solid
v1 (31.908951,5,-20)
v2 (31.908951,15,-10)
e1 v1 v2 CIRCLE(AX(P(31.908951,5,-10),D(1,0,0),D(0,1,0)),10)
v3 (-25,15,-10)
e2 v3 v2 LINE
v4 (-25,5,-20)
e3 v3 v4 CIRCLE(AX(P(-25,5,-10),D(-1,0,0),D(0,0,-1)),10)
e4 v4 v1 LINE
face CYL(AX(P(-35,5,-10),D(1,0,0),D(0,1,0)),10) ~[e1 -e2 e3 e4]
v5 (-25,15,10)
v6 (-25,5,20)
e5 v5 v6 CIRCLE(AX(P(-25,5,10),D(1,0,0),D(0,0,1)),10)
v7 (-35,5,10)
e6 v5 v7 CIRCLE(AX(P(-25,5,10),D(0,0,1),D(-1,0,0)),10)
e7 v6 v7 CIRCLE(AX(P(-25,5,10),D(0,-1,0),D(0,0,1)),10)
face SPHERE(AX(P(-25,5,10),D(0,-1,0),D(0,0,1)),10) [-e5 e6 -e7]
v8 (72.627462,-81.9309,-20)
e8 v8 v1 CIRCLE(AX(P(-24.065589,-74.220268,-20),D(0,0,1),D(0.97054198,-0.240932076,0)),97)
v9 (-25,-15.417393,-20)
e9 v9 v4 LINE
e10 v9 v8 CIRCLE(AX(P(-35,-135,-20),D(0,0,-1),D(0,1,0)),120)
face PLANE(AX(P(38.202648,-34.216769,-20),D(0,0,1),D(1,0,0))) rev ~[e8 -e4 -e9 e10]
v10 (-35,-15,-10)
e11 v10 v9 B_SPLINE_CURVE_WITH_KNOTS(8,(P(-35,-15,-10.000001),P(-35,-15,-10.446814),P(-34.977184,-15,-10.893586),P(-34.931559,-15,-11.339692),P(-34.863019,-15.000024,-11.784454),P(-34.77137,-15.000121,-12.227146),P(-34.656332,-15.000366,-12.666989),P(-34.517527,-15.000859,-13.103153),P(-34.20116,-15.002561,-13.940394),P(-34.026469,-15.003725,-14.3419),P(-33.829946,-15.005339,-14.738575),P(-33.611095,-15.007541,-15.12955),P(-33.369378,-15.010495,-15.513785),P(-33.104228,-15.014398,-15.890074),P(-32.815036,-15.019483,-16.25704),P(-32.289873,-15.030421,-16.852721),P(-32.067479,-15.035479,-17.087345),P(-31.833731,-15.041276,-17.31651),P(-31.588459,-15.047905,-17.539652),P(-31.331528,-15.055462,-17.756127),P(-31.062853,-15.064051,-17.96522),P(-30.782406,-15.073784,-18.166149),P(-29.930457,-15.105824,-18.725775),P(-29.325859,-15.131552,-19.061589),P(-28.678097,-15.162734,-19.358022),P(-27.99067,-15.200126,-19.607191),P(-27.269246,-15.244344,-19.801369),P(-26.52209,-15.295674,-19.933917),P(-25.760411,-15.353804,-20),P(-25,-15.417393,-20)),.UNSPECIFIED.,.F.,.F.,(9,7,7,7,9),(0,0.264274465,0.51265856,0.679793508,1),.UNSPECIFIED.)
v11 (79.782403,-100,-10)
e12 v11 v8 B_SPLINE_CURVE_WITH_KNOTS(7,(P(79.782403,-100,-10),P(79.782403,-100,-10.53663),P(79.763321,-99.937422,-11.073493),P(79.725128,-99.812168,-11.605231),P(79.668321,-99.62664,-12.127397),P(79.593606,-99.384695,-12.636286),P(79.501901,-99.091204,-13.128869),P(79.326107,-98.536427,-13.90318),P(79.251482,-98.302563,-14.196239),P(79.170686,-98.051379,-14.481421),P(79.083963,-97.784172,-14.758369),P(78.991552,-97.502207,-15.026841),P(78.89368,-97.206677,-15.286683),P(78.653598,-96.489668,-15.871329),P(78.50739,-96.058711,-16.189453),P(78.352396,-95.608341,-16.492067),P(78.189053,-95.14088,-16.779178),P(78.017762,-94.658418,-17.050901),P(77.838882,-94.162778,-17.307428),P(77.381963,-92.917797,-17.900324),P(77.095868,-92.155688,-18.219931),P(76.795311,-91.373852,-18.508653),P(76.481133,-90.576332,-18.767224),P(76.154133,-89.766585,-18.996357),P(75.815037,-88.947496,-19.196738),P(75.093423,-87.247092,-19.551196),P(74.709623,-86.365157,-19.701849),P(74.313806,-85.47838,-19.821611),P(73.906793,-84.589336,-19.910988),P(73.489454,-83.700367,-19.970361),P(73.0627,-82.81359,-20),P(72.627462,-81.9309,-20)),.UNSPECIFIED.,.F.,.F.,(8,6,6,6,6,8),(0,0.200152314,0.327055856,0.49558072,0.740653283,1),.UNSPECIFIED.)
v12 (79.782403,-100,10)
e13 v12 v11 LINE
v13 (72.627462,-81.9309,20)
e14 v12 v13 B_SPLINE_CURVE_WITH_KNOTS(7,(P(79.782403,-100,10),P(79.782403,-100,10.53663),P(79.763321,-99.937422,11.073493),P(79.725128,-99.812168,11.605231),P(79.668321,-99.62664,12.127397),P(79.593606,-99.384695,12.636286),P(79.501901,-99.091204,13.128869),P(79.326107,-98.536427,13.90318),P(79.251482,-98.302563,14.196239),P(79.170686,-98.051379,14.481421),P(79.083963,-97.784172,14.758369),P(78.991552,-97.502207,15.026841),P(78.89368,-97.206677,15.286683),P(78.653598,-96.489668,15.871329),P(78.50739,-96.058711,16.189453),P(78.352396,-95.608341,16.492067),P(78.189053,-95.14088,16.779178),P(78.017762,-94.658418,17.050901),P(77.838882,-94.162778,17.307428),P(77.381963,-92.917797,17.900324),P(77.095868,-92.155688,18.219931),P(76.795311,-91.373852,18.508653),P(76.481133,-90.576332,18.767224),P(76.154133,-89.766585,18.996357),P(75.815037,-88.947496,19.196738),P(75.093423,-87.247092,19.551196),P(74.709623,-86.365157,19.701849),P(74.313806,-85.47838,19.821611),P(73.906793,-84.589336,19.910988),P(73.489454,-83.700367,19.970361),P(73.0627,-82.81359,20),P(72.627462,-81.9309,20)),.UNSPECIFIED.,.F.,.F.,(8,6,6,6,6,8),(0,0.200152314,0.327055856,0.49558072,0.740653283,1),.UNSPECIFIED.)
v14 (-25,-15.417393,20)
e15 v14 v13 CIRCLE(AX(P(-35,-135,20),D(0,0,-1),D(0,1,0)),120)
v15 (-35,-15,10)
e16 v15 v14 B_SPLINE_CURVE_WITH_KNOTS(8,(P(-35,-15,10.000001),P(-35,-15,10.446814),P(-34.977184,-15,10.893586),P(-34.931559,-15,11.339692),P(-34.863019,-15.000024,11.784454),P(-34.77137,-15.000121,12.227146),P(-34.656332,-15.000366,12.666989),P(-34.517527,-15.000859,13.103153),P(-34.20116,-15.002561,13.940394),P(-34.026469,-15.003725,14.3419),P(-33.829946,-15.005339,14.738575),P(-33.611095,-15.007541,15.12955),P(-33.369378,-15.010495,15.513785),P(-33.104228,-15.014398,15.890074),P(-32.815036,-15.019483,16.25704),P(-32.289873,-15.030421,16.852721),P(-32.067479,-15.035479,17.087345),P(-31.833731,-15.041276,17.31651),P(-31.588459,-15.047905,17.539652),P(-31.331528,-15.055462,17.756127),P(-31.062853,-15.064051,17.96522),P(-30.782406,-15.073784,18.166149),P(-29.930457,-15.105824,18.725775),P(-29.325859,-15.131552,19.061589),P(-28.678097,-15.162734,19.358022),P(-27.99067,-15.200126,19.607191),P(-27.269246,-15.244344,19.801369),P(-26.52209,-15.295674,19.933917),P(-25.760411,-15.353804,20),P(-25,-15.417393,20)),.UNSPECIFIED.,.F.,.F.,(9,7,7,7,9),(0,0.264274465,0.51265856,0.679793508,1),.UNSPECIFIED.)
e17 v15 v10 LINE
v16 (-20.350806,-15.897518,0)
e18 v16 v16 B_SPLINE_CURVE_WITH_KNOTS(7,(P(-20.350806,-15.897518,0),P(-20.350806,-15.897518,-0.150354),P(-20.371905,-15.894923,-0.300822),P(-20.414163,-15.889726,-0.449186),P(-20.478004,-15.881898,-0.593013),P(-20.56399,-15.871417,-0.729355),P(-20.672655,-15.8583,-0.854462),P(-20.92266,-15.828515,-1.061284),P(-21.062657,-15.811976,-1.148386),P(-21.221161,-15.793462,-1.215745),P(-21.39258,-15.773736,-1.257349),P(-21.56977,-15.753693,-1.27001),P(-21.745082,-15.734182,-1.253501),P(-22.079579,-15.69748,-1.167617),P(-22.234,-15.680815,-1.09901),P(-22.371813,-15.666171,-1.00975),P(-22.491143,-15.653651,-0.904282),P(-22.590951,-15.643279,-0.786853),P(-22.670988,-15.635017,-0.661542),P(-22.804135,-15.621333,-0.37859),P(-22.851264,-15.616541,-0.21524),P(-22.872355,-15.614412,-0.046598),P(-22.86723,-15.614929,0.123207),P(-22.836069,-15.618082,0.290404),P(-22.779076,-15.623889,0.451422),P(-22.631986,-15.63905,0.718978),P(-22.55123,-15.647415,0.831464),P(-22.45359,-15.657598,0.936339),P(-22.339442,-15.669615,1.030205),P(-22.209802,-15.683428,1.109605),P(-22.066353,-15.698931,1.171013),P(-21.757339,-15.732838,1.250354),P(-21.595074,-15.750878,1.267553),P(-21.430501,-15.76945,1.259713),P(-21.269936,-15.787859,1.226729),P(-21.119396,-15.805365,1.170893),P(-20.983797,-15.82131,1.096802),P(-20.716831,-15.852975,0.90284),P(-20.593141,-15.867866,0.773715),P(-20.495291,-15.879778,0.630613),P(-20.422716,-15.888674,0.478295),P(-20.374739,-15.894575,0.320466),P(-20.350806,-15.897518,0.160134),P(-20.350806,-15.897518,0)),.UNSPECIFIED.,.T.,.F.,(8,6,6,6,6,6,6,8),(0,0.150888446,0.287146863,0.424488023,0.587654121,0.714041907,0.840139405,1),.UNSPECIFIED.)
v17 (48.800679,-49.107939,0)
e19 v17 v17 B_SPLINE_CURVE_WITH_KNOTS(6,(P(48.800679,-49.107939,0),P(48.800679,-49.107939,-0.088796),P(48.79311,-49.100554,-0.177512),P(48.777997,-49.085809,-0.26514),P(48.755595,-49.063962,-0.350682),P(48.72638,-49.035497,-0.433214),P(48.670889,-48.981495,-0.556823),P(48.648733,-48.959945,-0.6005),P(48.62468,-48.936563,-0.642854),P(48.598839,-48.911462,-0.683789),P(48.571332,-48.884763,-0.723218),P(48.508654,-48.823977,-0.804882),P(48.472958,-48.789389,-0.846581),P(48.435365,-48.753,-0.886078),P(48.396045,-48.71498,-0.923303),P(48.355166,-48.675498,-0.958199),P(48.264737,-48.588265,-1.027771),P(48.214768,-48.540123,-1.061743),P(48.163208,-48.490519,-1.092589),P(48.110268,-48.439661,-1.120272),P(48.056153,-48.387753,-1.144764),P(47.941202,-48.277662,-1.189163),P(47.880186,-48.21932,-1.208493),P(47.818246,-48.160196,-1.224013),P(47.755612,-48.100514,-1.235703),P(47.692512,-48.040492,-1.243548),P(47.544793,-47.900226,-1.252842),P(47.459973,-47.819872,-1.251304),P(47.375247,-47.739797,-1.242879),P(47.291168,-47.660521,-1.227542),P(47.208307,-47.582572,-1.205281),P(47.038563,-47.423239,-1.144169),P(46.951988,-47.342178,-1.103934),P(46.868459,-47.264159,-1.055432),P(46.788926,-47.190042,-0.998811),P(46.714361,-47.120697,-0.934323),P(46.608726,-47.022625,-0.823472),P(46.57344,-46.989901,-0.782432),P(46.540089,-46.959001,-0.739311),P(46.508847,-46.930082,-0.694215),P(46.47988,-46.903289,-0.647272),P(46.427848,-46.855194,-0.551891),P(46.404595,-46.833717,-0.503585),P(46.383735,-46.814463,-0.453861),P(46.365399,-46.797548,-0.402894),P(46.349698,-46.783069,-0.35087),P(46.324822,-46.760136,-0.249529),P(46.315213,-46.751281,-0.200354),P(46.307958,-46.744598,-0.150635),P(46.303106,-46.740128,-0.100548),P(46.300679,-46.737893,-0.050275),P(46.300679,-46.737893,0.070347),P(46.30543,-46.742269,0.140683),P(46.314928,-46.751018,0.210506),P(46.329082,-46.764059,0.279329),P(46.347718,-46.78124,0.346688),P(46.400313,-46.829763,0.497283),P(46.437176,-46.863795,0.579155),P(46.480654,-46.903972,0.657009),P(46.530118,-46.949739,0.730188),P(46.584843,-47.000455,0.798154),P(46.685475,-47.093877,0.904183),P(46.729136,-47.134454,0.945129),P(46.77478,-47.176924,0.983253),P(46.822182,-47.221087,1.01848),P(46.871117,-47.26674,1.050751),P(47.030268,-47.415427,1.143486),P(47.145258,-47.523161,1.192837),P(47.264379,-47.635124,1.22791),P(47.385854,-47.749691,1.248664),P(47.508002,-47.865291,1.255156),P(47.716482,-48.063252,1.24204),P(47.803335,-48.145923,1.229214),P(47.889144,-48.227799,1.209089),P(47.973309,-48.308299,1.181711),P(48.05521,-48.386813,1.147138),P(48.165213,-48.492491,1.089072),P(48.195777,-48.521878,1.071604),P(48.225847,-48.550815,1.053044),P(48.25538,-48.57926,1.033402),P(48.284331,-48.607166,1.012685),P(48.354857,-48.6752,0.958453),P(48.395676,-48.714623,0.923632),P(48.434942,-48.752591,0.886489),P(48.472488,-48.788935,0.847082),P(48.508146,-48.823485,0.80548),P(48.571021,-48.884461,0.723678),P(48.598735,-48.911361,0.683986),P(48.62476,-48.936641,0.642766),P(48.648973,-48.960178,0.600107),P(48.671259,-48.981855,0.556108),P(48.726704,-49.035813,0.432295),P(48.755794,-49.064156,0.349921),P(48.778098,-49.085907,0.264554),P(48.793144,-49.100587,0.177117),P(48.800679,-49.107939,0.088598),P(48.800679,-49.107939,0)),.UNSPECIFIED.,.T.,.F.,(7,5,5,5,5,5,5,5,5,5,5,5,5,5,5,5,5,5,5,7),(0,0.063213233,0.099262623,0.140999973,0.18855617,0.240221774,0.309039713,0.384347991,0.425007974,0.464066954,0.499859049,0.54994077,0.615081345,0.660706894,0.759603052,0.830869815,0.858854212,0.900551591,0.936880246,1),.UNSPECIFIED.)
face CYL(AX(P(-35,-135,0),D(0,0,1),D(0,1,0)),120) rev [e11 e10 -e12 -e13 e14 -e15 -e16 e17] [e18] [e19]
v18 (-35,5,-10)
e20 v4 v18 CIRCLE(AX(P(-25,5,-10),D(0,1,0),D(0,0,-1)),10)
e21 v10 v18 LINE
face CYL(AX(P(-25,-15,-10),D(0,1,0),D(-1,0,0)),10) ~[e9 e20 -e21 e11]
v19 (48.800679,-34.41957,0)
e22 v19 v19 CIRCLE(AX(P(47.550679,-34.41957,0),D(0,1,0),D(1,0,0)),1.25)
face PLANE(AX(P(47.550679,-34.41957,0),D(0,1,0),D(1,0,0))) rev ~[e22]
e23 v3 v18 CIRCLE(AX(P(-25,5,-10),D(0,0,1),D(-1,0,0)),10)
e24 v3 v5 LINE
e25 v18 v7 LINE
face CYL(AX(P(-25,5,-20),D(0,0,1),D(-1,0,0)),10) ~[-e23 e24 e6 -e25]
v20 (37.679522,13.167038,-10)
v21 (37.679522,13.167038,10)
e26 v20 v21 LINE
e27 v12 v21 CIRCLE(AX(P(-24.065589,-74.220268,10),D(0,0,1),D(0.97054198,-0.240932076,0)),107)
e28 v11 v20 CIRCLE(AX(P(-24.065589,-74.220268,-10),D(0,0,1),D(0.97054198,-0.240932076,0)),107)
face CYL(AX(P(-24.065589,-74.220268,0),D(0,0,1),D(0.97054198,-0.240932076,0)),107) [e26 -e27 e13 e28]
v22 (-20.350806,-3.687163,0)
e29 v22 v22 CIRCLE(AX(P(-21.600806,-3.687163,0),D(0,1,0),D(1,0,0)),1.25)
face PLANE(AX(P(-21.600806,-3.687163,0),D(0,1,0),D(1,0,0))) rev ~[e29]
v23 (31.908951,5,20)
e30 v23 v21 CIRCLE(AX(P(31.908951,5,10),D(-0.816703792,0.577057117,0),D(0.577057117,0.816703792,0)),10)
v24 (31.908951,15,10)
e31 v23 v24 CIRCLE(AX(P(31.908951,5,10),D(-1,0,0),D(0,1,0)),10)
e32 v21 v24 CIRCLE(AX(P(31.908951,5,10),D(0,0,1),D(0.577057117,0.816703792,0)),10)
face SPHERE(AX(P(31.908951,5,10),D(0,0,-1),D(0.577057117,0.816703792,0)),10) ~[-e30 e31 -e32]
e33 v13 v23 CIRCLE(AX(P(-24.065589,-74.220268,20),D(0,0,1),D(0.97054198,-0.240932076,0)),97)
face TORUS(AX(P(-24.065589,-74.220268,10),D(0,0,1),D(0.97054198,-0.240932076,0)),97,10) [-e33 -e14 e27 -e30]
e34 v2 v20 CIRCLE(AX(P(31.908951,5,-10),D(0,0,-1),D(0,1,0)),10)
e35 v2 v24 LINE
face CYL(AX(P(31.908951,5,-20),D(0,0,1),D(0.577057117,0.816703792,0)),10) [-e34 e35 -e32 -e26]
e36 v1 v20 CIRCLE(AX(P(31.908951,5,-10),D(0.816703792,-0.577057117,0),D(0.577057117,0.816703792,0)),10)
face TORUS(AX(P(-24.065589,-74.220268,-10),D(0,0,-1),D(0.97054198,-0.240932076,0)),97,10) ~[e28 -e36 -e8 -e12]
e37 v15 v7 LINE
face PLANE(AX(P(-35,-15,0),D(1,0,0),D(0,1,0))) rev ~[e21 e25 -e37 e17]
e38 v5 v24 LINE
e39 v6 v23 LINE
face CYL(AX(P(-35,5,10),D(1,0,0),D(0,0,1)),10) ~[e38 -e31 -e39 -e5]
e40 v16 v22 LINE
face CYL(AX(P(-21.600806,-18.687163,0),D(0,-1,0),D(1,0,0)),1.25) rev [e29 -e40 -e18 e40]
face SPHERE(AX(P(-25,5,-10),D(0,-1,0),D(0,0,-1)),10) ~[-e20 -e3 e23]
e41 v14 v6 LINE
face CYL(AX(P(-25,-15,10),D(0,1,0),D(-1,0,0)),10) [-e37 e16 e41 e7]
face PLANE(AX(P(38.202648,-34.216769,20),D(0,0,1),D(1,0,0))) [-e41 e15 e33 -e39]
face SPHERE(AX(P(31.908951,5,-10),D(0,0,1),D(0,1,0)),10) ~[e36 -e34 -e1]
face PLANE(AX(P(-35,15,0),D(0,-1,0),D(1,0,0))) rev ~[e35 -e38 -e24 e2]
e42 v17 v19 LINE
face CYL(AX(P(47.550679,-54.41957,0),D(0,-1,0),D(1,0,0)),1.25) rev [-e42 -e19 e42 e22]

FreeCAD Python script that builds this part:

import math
import FreeCAD as App
import Part
import Sketcher

V = App.Vector


def edges_at(feature, points):
    """Names of the edges that pass closest to the given points."""
    edges = feature.Shape.Edges
    near = lambda p: min(range(len(edges)), key=lambda i: edges[i].distToShape(Part.Vertex(*p))[0])
    return sorted({f"Edge{near(p) + 1}" for p in points})

doc = App.newDocument("Part")
body = doc.addObject("PartDesign::Body", "Body")

# Sketch on XY plane
sketch1 = body.newObject("Sketcher::SketchObject", "Sketch")
sketch1.AttachmentSupport = (doc.getObject("XY_Plane"), [""])
sketch1.MapMode = "FlatFace"
sketch1.addGeometry(Part.ArcOfCircle(Part.Circle(V(-24, -74, 0), V(0, 0, 1), 107), math.radians(-14), math.radians(56)), False)
sketch1.addGeometry(Part.LineSegment(V(35, 15, 0), V(-35, 15, 0)), False)
sketch1.addGeometry(Part.LineSegment(V(-35, 15, 0), V(-35, -15, 0)), False)
sketch1.addGeometry(Part.ArcOfCircle(Part.Circle(V(-35, -135, 0), V(0, 0, 1), 120), math.radians(17), math.radians(90)), False)
sketch1.addConstraint(Sketcher.Constraint("Coincident", 0, 2, 1, 1))
sketch1.addConstraint(Sketcher.Constraint("Coincident", 1, 2, 2, 1))
sketch1.addConstraint(Sketcher.Constraint("Coincident", 2, 2, 3, 2))
sketch1.addConstraint(Sketcher.Constraint("Coincident", 3, 1, 0, 1))
sketch1.addConstraint(Sketcher.Constraint("Horizontal", 1))
sketch1.addConstraint(Sketcher.Constraint("Vertical", 2))
sketch1.addConstraint(Sketcher.Constraint("Symmetric", 0, 2, 2, 2, -1, 1))
sketch1.addConstraint(Sketcher.Constraint("Vertical", 3, 3, 1, 2))
sketch1.addConstraint(Sketcher.Constraint("Radius", 0, 107.0))
sketch1.addConstraint(Sketcher.Constraint("Radius", 3, 120.0))
sketch1.addConstraint(Sketcher.Constraint("DistanceX", 1, 2, 1, 1, 70.0))
sketch1.addConstraint(Sketcher.Constraint("DistanceY", 2, 2, 2, 1, 30.0))
sketch1.addConstraint(Sketcher.Constraint("DistanceY", 3, 1, -1, 1, 100.0))
pad1 = body.newObject("PartDesign::Pad", "Pad")
pad1.Profile = sketch1
pad1.Length = 40
pad1.Midplane = True
doc.recompute()

fillet = body.newObject("PartDesign::Fillet", "Fillet")
fillet.Base = (pad1, edges_at(pad1, [
    (-35, 0, 20),
    (75.641, -35.393, 20),
    (-35, 0, -20),
    (0, 15, -20),
    (75.641, -35.393, -20),
    (0, 15, 20),
    (-35, 15, 0),
    (35, 15, 0),
]))
fillet.Radius = 10

# Sketch on XZ plane
sketch2 = body.newObject("Sketcher::SketchObject", "Sketch001")
sketch2.AttachmentSupport = (doc.getObject("XZ_Plane"), [""])
sketch2.MapMode = "FlatFace"
sketch2.AttachmentOffset = App.Placement(V(0, 0, 18.687163), App.Rotation())
sketch2.addGeometry(Part.Circle(V(-21.6, 0, 0), V(0, 0, 1), 1.2), False)
sketch2.addConstraint(Sketcher.Constraint("PointOnObject", 0, 3, -1))
sketch2.addConstraint(Sketcher.Constraint("Diameter", 0, 2.5))
sketch2.addConstraint(Sketcher.Constraint("DistanceX", 0, 3, -1, 1, 21.600806))
pocket1 = body.newObject("PartDesign::Pocket", "Pocket")
pocket1.Profile = sketch2
pocket1.Length = 15

# Sketch on XZ plane
sketch3 = body.newObject("Sketcher::SketchObject", "Sketch002")
sketch3.AttachmentSupport = (doc.getObject("XZ_Plane"), [""])
sketch3.MapMode = "FlatFace"
sketch3.AttachmentOffset = App.Placement(V(0, 0, 54.41957), App.Rotation())
sketch3.addGeometry(Part.Circle(V(47.6, 0, 0), V(0, 0, 1), 1.2), False)
sketch3.addConstraint(Sketcher.Constraint("PointOnObject", 0, 3, -1))
sketch3.addConstraint(Sketcher.Constraint("Diameter", 0, 2.5))
sketch3.addConstraint(Sketcher.Constraint("DistanceX", -1, 1, 0, 3, 47.550679))
pocket2 = body.newObject("PartDesign::Pocket", "Pocket001")
pocket2.Profile = sketch3
pocket2.Length = 20

doc.recompute()
